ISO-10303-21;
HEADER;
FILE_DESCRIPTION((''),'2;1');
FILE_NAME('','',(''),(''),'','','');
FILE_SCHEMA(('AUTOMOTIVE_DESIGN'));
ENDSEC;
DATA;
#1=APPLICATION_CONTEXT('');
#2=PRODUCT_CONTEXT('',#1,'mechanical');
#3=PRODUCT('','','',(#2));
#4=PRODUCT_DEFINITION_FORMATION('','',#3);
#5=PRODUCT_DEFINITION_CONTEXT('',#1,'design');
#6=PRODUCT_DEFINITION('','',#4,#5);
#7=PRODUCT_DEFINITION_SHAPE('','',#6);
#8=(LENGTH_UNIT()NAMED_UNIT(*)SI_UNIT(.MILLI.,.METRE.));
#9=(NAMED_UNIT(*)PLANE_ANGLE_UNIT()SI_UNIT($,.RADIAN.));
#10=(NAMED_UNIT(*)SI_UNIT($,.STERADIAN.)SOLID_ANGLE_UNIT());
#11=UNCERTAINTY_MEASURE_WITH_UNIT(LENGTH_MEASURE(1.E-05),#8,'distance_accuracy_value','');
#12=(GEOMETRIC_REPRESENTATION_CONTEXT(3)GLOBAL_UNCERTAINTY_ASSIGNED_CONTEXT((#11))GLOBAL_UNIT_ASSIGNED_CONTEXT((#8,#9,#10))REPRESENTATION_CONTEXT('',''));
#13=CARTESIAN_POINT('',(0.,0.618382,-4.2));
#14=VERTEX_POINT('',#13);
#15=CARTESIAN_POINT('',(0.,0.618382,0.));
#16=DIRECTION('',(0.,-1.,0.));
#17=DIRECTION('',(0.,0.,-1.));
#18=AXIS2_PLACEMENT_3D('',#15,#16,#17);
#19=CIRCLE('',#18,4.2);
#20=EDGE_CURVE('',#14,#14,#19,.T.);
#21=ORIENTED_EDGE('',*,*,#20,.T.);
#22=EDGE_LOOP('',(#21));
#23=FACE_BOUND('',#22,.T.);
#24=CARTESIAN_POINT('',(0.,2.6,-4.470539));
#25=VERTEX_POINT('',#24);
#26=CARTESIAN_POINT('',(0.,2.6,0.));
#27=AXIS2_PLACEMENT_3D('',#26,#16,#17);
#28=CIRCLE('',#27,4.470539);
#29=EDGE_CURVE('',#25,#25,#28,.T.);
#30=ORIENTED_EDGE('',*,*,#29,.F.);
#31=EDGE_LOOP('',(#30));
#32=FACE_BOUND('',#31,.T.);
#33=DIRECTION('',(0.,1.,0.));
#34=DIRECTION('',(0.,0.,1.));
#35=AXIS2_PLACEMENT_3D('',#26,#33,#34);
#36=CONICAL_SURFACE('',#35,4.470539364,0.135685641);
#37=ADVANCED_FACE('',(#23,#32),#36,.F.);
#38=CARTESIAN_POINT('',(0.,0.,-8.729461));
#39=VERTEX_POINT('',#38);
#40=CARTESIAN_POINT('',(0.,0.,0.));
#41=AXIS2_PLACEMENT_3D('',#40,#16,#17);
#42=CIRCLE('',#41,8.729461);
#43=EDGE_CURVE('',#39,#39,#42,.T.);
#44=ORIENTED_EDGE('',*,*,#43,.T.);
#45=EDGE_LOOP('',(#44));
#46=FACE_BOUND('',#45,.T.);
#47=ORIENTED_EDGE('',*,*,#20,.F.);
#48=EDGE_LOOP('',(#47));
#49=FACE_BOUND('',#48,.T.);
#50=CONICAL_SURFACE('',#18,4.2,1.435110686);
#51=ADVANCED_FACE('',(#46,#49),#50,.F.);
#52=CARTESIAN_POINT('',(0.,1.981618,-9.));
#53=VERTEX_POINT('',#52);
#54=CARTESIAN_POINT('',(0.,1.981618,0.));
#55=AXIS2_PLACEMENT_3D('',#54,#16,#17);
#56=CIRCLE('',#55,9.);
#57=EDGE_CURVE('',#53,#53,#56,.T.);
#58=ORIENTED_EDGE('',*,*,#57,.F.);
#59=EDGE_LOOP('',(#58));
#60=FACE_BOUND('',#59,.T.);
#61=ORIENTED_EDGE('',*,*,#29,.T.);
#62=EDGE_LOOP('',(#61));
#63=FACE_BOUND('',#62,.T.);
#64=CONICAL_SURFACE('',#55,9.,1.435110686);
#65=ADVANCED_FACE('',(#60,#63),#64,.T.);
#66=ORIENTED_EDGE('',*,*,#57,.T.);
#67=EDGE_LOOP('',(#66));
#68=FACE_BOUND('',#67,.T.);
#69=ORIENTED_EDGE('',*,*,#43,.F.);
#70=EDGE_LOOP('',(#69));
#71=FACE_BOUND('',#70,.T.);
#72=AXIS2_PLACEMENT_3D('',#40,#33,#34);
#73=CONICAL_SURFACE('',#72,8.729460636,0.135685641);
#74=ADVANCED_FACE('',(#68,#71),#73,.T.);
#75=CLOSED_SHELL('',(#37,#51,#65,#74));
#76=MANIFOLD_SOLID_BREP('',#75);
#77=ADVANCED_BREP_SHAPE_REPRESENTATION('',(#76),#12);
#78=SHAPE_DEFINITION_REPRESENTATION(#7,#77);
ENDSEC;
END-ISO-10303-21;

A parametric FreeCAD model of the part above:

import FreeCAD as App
import Part
import Sketcher
Q = App.Units.Quantity


def add_polygon(sketch, points):
    """Adds a closed chain of lines whose ends are joined by coincident constraints."""
    first, n = sketch.GeometryCount, len(points)
    for a, b in zip(points, points[1:] + points[:1]):
        sketch.addGeometry(Part.LineSegment(App.Vector(*a, 0), App.Vector(*b, 0)), False)
    for i in range(n):
        sketch.addConstraint(Sketcher.Constraint("Coincident", first + i, 2, first + (i + 1) % n, 1))

doc = App.newDocument("Part")
params = doc.addObject("Spreadsheet::Sheet", "Params")
for row, (alias, value) in enumerate([
    ("sketch1_length", "2 mm"),
    ("revolution_angle", "360 deg"),
], start=1):
    params.set(f"A{row}", alias)
    params.set(f"B{row}", "=" + value)
    params.setAlias(f"B{row}", alias)

body = doc.addObject("PartDesign::Body", "Body")

sketch1 = body.newObject("Sketcher::SketchObject", "Sketch")
sketch1.AttachmentSupport = (doc.getObject("XY_Plane"), [""])
sketch1.MapMode = "FlatFace"
add_polygon(sketch1, [(4.2, 0.618382), (8.729461, 0), (9, 1.981618), (4.470539, 2.6)])
sketch1.addConstraint(Sketcher.Constraint("PointOnObject", 0, 2, -1))
sketch1.addConstraint(Sketcher.Constraint("Perpendicular", 0, 1))
sketch1.addConstraint(Sketcher.Constraint("Perpendicular", 1, 2))
sketch1.addConstraint(Sketcher.Constraint("Perpendicular", 2, 3))
sketch1.addConstraint(Sketcher.Constraint("Distance", 1, Q("2 mm")))
sketch1.addConstraint(Sketcher.Constraint("DistanceX", -1, 1, 1, 2, Q("9 mm")))
sketch1.addConstraint(Sketcher.Constraint("DistanceY", -1, 1, 2, 2, Q("2.6 mm")))
sketch1.addConstraint(Sketcher.Constraint("DistanceX", -1, 1, 3, 2, Q("4.2 mm")))
sketch1.setExpression("Constraints[8]", "Params.sketch1_length")
revolution = body.newObject("PartDesign::Revolution", "Revolution")
revolution.Profile = sketch1
revolution.ReferenceAxis = (sketch1, ["V_Axis"])
revolution.setExpression("Angle", "Params.revolution_angle")

doc.recompute()
